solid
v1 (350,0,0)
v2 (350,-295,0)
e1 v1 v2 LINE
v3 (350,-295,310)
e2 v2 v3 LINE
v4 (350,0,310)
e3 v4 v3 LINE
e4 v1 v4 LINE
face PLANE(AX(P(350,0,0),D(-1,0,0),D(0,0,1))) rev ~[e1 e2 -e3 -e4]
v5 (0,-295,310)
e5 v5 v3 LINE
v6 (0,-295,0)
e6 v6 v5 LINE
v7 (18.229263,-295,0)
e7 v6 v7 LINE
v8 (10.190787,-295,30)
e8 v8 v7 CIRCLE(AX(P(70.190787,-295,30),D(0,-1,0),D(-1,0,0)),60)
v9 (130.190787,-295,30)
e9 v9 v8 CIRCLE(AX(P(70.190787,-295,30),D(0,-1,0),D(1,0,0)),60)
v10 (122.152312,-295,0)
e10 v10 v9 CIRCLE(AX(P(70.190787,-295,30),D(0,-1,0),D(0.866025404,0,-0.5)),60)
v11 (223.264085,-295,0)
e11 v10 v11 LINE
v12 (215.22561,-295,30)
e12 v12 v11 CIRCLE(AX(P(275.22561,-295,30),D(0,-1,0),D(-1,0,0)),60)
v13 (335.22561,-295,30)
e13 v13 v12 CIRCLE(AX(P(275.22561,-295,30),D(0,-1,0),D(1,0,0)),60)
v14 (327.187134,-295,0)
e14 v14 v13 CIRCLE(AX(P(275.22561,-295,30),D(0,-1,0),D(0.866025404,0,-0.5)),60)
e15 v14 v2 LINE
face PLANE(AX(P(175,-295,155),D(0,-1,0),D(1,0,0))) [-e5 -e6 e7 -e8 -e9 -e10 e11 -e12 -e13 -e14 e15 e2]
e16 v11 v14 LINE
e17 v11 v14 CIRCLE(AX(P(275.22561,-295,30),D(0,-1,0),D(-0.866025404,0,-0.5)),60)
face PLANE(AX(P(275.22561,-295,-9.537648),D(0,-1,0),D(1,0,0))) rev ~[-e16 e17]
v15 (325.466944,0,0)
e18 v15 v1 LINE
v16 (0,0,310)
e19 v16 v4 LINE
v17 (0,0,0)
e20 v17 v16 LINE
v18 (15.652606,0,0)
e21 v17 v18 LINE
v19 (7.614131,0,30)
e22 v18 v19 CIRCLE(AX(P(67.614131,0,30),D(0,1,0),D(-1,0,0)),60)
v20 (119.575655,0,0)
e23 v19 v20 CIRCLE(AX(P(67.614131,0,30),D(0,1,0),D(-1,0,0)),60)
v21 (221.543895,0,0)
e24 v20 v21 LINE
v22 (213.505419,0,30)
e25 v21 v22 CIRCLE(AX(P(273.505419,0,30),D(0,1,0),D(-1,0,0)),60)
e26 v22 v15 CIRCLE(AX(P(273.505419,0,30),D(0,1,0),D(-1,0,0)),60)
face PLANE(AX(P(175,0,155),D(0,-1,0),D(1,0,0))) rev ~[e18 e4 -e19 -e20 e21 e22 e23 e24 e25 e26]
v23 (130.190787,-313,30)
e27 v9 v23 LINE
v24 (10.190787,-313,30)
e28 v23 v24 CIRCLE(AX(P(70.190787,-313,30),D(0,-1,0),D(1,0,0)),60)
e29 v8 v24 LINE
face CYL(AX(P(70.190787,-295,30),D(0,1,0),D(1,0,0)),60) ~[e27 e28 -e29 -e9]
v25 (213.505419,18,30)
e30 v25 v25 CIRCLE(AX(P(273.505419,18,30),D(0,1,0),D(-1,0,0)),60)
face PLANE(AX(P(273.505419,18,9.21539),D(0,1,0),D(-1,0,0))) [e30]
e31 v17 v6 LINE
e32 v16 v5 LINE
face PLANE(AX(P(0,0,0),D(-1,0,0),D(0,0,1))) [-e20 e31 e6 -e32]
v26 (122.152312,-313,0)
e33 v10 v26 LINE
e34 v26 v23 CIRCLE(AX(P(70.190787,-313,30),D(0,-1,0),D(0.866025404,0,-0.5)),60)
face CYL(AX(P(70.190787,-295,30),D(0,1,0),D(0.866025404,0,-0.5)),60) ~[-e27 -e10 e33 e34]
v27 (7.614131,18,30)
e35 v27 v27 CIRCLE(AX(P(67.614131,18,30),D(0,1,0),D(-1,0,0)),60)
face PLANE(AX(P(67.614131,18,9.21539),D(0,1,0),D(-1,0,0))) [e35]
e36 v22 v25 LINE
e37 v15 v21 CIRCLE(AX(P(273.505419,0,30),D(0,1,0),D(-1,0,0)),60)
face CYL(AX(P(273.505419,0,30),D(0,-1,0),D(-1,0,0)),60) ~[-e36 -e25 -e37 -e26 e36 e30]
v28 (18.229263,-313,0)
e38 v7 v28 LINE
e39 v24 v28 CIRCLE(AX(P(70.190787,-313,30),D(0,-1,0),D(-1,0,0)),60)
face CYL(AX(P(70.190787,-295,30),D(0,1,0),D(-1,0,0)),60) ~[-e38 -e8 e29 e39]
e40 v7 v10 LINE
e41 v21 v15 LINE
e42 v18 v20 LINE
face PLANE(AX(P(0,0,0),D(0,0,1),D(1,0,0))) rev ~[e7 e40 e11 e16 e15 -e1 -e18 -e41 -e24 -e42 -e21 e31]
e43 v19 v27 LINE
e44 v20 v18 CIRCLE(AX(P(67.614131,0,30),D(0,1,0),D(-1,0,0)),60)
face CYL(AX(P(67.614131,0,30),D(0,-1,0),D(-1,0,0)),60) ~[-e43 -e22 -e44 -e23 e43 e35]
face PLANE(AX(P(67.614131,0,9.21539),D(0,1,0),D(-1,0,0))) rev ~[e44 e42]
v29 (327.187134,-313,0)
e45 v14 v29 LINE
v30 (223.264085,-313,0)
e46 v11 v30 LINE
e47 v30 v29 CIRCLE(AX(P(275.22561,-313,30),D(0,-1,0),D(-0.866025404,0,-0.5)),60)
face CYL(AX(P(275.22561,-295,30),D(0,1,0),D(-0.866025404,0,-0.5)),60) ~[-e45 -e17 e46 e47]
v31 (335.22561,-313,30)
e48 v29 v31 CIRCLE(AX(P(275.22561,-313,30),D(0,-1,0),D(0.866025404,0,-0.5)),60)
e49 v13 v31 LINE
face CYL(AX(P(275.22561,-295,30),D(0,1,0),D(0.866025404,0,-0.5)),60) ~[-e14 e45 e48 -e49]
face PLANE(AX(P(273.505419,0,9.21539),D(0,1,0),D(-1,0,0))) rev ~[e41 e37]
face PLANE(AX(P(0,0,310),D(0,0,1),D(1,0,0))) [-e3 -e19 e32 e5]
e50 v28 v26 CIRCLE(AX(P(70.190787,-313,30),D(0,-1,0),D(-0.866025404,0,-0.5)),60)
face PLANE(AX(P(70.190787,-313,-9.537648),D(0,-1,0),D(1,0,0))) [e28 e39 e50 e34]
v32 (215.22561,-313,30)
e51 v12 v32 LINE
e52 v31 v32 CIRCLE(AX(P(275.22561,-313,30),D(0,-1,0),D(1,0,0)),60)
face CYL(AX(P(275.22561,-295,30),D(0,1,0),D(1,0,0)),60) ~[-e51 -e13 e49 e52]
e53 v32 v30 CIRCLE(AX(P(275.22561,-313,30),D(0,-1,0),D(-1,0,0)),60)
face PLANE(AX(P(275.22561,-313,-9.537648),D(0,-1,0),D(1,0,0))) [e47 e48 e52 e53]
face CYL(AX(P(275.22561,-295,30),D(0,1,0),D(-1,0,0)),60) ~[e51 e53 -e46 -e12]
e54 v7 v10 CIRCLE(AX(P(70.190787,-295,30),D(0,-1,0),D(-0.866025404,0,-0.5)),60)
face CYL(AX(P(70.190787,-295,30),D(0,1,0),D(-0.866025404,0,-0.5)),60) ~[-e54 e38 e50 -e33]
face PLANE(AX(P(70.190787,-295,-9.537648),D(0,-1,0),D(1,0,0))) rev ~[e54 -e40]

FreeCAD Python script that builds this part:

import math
import FreeCAD as App
import Part
import Sketcher

V = App.Vector
Q = App.Units.Quantity


def add_polygon(sketch, points):
    """Adds a closed chain of lines whose ends are joined by coincident constraints."""
    first, n = sketch.GeometryCount, len(points)
    for a, b in zip(points, points[1:] + points[:1]):
        sketch.addGeometry(Part.LineSegment(App.Vector(*a, 0), App.Vector(*b, 0)), False)
    for i in range(n):
        sketch.addConstraint(Sketcher.Constraint("Coincident", first + i, 2, first + (i + 1) % n, 1))

doc = App.newDocument("Part")
params = doc.addObject("Spreadsheet::Sheet", "Params")
for row, (alias, value) in enumerate([
    ("sketch1_width", "350 mm"),
    ("sketch1_height", "310 mm"),
    ("pad1_length", "295 mm"),
    ("sketch2_radius", "60 mm"),
    ("pad2_length", "18 mm"),
    ("sketch3_diameter", "120 mm"),
    ("pad3_length", "18 mm"),
], start=1):
    params.set(f"A{row}", alias)
    params.set(f"B{row}", "=" + value)
    params.setAlias(f"B{row}", alias)

body = doc.addObject("PartDesign::Body", "Body")

# Sketch on XZ plane
sketch1 = body.newObject("Sketcher::SketchObject", "Sketch")
sketch1.AttachmentSupport = (doc.getObject("XZ_Plane"), [""])
sketch1.MapMode = "FlatFace"
add_polygon(sketch1, [(0, 310), (0, 0), (350, 0), (350, 310)])  # lines 0-3
sketch1.addConstraint(Sketcher.Constraint("Vertical", 0))
sketch1.addConstraint(Sketcher.Constraint("Horizontal", 1))
sketch1.addConstraint(Sketcher.Constraint("Vertical", 2))
sketch1.addConstraint(Sketcher.Constraint("Horizontal", 3))
sketch1.addConstraint(Sketcher.Constraint("Coincident", 0, 2, -1, 1))
sketch1.addConstraint(Sketcher.Constraint("DistanceX", 1, 1, 1, 2, Q("350 mm")))
sketch1.addConstraint(Sketcher.Constraint("DistanceY", 0, 2, 0, 1, Q("310 mm")))
sketch1.setExpression("Constraints[9]", "Params.sketch1_width")
sketch1.setExpression("Constraints[10]", "Params.sketch1_height")
pad1 = body.newObject("PartDesign::Pad", "Pad")
pad1.Profile = sketch1
pad1.setExpression("Length", "Params.pad1_length")

# Sketch on XZ plane
sketch2 = body.newObject("Sketcher::SketchObject", "Sketch001")
sketch2.AttachmentSupport = (doc.getObject("XZ_Plane"), [""])
sketch2.MapMode = "FlatFace"
sketch2.AttachmentOffset = App.Placement(V(0, 0, 295), App.Rotation())
sketch2.addGeometry(Part.ArcOfCircle(Part.Circle(V(70.190787, 30, 0), V(0, 0, 1), 60), math.radians(-150), math.radians(-30)), False)
sketch2.addGeometry(Part.ArcOfCircle(Part.Circle(V(70.190787, 30, 0), V(0, 0, 1), 60), math.radians(-30), math.radians(0)), False)
sketch2.addGeometry(Part.ArcOfCircle(Part.Circle(V(70.190787, 30, 0), V(0, 0, 1), 60), math.radians(0), math.radians(180)), False)
sketch2.addGeometry(Part.ArcOfCircle(Part.Circle(V(70.190787, 30, 0), V(0, 0, 1), 60), math.radians(180), math.radians(210)), False)
sketch2.addGeometry(Part.ArcOfCircle(Part.Circle(V(275.22561, 30, 0), V(0, 0, 1), 60), math.radians(-150), math.radians(-30)), False)
sketch2.addGeometry(Part.ArcOfCircle(Part.Circle(V(275.22561, 30, 0), V(0, 0, 1), 60), math.radians(-30), math.radians(0)), False)
sketch2.addGeometry(Part.ArcOfCircle(Part.Circle(V(275.22561, 30, 0), V(0, 0, 1), 60), math.radians(0), math.radians(180)), False)
sketch2.addGeometry(Part.ArcOfCircle(Part.Circle(V(275.22561, 30, 0), V(0, 0, 1), 60), math.radians(180), math.radians(210)), False)
sketch2.addConstraint(Sketcher.Constraint("Tangent", 0, 2, 1, 1))
sketch2.addConstraint(Sketcher.Constraint("Tangent", 1, 2, 2, 1))
sketch2.addConstraint(Sketcher.Constraint("Tangent", 2, 2, 3, 1))
sketch2.addConstraint(Sketcher.Constraint("Tangent", 3, 2, 0, 1))
sketch2.addConstraint(Sketcher.Constraint("Tangent", 4, 2, 5, 1))
sketch2.addConstraint(Sketcher.Constraint("Tangent", 5, 2, 6, 1))
sketch2.addConstraint(Sketcher.Constraint("Tangent", 6, 2, 7, 1))
sketch2.addConstraint(Sketcher.Constraint("Tangent", 7, 2, 4, 1))
sketch2.addConstraint(Sketcher.Constraint("Equal", 0, 1))
sketch2.addConstraint(Sketcher.Constraint("Equal", 3, 4))
sketch2.addConstraint(Sketcher.Constraint("Equal", 4, 5))
sketch2.addConstraint(Sketcher.Constraint("PointOnObject", 0, 2, -1))
sketch2.addConstraint(Sketcher.Constraint("PointOnObject", 3, 2, -1))
sketch2.addConstraint(Sketcher.Constraint("PointOnObject", 4, 2, -1))
sketch2.addConstraint(Sketcher.Constraint("PointOnObject", 7, 2, -1))
sketch2.addConstraint(Sketcher.Constraint("Horizontal", 3, 3, 4, 3))
sketch2.addConstraint(Sketcher.Constraint("Horizontal", 7, 3, 1, 2))
sketch2.addConstraint(Sketcher.Constraint("Horizontal", 1, 2, 2, 2))
sketch2.addConstraint(Sketcher.Constraint("Horizontal", 2, 2, 5, 2))
sketch2.addConstraint(Sketcher.Constraint("Horizontal", 5, 2, 6, 2))
sketch2.addConstraint(Sketcher.Constraint("Radius", 0, Q("60 mm")))
sketch2.addConstraint(Sketcher.Constraint("DistanceY", -1, 1, 0, 3, Q("30 mm")))
sketch2.addConstraint(Sketcher.Constraint("DistanceX", -1, 1, 4, 3, Q("275.22561 mm")))
sketch2.addConstraint(Sketcher.Constraint("DistanceX", -1, 1, 0, 2, Q("122.152312 mm")))
sketch2.setExpression("Constraints[20]", "Params.sketch2_radius")
pad2 = body.newObject("PartDesign::Pad", "Pad001")
pad2.Profile = sketch2
pad2.setExpression("Length", "Params.pad2_length")

# Sketch on XZ plane
sketch3 = body.newObject("Sketcher::SketchObject", "Sketch002")
sketch3.AttachmentSupport = (doc.getObject("XZ_Plane"), [""])
sketch3.MapMode = "FlatFace"
sketch3.addGeometry(Part.Circle(V(67.614131, 30, 0), V(0, 0, 1), 60), False)
sketch3.addGeometry(Part.Circle(V(273.505419, 30, 0), V(0, 0, 1), 60), False)
sketch3.addConstraint(Sketcher.Constraint("Equal", 0, 1))
sketch3.addConstraint(Sketcher.Constraint("Horizontal", 0, 3, 1, 3))
sketch3.addConstraint(Sketcher.Constraint("Diameter", 0, Q("120 mm")))
sketch3.addConstraint(Sketcher.Constraint("DistanceY", -1, 1, 0, 3, Q("30 mm")))
sketch3.addConstraint(Sketcher.Constraint("DistanceX", -1, 1, 0, 3, Q("67.614131 mm")))
sketch3.addConstraint(Sketcher.Constraint("DistanceX", -1, 1, 1, 3, Q("273.505419 mm")))
sketch3.setExpression("Constraints[2]", "Params.sketch3_diameter")
pad3 = body.newObject("PartDesign::Pad", "Pad002")
pad3.Profile = sketch3
pad3.setExpression("Length", "Params.pad3_length")
pad3.Reversed = True

doc.recompute()
